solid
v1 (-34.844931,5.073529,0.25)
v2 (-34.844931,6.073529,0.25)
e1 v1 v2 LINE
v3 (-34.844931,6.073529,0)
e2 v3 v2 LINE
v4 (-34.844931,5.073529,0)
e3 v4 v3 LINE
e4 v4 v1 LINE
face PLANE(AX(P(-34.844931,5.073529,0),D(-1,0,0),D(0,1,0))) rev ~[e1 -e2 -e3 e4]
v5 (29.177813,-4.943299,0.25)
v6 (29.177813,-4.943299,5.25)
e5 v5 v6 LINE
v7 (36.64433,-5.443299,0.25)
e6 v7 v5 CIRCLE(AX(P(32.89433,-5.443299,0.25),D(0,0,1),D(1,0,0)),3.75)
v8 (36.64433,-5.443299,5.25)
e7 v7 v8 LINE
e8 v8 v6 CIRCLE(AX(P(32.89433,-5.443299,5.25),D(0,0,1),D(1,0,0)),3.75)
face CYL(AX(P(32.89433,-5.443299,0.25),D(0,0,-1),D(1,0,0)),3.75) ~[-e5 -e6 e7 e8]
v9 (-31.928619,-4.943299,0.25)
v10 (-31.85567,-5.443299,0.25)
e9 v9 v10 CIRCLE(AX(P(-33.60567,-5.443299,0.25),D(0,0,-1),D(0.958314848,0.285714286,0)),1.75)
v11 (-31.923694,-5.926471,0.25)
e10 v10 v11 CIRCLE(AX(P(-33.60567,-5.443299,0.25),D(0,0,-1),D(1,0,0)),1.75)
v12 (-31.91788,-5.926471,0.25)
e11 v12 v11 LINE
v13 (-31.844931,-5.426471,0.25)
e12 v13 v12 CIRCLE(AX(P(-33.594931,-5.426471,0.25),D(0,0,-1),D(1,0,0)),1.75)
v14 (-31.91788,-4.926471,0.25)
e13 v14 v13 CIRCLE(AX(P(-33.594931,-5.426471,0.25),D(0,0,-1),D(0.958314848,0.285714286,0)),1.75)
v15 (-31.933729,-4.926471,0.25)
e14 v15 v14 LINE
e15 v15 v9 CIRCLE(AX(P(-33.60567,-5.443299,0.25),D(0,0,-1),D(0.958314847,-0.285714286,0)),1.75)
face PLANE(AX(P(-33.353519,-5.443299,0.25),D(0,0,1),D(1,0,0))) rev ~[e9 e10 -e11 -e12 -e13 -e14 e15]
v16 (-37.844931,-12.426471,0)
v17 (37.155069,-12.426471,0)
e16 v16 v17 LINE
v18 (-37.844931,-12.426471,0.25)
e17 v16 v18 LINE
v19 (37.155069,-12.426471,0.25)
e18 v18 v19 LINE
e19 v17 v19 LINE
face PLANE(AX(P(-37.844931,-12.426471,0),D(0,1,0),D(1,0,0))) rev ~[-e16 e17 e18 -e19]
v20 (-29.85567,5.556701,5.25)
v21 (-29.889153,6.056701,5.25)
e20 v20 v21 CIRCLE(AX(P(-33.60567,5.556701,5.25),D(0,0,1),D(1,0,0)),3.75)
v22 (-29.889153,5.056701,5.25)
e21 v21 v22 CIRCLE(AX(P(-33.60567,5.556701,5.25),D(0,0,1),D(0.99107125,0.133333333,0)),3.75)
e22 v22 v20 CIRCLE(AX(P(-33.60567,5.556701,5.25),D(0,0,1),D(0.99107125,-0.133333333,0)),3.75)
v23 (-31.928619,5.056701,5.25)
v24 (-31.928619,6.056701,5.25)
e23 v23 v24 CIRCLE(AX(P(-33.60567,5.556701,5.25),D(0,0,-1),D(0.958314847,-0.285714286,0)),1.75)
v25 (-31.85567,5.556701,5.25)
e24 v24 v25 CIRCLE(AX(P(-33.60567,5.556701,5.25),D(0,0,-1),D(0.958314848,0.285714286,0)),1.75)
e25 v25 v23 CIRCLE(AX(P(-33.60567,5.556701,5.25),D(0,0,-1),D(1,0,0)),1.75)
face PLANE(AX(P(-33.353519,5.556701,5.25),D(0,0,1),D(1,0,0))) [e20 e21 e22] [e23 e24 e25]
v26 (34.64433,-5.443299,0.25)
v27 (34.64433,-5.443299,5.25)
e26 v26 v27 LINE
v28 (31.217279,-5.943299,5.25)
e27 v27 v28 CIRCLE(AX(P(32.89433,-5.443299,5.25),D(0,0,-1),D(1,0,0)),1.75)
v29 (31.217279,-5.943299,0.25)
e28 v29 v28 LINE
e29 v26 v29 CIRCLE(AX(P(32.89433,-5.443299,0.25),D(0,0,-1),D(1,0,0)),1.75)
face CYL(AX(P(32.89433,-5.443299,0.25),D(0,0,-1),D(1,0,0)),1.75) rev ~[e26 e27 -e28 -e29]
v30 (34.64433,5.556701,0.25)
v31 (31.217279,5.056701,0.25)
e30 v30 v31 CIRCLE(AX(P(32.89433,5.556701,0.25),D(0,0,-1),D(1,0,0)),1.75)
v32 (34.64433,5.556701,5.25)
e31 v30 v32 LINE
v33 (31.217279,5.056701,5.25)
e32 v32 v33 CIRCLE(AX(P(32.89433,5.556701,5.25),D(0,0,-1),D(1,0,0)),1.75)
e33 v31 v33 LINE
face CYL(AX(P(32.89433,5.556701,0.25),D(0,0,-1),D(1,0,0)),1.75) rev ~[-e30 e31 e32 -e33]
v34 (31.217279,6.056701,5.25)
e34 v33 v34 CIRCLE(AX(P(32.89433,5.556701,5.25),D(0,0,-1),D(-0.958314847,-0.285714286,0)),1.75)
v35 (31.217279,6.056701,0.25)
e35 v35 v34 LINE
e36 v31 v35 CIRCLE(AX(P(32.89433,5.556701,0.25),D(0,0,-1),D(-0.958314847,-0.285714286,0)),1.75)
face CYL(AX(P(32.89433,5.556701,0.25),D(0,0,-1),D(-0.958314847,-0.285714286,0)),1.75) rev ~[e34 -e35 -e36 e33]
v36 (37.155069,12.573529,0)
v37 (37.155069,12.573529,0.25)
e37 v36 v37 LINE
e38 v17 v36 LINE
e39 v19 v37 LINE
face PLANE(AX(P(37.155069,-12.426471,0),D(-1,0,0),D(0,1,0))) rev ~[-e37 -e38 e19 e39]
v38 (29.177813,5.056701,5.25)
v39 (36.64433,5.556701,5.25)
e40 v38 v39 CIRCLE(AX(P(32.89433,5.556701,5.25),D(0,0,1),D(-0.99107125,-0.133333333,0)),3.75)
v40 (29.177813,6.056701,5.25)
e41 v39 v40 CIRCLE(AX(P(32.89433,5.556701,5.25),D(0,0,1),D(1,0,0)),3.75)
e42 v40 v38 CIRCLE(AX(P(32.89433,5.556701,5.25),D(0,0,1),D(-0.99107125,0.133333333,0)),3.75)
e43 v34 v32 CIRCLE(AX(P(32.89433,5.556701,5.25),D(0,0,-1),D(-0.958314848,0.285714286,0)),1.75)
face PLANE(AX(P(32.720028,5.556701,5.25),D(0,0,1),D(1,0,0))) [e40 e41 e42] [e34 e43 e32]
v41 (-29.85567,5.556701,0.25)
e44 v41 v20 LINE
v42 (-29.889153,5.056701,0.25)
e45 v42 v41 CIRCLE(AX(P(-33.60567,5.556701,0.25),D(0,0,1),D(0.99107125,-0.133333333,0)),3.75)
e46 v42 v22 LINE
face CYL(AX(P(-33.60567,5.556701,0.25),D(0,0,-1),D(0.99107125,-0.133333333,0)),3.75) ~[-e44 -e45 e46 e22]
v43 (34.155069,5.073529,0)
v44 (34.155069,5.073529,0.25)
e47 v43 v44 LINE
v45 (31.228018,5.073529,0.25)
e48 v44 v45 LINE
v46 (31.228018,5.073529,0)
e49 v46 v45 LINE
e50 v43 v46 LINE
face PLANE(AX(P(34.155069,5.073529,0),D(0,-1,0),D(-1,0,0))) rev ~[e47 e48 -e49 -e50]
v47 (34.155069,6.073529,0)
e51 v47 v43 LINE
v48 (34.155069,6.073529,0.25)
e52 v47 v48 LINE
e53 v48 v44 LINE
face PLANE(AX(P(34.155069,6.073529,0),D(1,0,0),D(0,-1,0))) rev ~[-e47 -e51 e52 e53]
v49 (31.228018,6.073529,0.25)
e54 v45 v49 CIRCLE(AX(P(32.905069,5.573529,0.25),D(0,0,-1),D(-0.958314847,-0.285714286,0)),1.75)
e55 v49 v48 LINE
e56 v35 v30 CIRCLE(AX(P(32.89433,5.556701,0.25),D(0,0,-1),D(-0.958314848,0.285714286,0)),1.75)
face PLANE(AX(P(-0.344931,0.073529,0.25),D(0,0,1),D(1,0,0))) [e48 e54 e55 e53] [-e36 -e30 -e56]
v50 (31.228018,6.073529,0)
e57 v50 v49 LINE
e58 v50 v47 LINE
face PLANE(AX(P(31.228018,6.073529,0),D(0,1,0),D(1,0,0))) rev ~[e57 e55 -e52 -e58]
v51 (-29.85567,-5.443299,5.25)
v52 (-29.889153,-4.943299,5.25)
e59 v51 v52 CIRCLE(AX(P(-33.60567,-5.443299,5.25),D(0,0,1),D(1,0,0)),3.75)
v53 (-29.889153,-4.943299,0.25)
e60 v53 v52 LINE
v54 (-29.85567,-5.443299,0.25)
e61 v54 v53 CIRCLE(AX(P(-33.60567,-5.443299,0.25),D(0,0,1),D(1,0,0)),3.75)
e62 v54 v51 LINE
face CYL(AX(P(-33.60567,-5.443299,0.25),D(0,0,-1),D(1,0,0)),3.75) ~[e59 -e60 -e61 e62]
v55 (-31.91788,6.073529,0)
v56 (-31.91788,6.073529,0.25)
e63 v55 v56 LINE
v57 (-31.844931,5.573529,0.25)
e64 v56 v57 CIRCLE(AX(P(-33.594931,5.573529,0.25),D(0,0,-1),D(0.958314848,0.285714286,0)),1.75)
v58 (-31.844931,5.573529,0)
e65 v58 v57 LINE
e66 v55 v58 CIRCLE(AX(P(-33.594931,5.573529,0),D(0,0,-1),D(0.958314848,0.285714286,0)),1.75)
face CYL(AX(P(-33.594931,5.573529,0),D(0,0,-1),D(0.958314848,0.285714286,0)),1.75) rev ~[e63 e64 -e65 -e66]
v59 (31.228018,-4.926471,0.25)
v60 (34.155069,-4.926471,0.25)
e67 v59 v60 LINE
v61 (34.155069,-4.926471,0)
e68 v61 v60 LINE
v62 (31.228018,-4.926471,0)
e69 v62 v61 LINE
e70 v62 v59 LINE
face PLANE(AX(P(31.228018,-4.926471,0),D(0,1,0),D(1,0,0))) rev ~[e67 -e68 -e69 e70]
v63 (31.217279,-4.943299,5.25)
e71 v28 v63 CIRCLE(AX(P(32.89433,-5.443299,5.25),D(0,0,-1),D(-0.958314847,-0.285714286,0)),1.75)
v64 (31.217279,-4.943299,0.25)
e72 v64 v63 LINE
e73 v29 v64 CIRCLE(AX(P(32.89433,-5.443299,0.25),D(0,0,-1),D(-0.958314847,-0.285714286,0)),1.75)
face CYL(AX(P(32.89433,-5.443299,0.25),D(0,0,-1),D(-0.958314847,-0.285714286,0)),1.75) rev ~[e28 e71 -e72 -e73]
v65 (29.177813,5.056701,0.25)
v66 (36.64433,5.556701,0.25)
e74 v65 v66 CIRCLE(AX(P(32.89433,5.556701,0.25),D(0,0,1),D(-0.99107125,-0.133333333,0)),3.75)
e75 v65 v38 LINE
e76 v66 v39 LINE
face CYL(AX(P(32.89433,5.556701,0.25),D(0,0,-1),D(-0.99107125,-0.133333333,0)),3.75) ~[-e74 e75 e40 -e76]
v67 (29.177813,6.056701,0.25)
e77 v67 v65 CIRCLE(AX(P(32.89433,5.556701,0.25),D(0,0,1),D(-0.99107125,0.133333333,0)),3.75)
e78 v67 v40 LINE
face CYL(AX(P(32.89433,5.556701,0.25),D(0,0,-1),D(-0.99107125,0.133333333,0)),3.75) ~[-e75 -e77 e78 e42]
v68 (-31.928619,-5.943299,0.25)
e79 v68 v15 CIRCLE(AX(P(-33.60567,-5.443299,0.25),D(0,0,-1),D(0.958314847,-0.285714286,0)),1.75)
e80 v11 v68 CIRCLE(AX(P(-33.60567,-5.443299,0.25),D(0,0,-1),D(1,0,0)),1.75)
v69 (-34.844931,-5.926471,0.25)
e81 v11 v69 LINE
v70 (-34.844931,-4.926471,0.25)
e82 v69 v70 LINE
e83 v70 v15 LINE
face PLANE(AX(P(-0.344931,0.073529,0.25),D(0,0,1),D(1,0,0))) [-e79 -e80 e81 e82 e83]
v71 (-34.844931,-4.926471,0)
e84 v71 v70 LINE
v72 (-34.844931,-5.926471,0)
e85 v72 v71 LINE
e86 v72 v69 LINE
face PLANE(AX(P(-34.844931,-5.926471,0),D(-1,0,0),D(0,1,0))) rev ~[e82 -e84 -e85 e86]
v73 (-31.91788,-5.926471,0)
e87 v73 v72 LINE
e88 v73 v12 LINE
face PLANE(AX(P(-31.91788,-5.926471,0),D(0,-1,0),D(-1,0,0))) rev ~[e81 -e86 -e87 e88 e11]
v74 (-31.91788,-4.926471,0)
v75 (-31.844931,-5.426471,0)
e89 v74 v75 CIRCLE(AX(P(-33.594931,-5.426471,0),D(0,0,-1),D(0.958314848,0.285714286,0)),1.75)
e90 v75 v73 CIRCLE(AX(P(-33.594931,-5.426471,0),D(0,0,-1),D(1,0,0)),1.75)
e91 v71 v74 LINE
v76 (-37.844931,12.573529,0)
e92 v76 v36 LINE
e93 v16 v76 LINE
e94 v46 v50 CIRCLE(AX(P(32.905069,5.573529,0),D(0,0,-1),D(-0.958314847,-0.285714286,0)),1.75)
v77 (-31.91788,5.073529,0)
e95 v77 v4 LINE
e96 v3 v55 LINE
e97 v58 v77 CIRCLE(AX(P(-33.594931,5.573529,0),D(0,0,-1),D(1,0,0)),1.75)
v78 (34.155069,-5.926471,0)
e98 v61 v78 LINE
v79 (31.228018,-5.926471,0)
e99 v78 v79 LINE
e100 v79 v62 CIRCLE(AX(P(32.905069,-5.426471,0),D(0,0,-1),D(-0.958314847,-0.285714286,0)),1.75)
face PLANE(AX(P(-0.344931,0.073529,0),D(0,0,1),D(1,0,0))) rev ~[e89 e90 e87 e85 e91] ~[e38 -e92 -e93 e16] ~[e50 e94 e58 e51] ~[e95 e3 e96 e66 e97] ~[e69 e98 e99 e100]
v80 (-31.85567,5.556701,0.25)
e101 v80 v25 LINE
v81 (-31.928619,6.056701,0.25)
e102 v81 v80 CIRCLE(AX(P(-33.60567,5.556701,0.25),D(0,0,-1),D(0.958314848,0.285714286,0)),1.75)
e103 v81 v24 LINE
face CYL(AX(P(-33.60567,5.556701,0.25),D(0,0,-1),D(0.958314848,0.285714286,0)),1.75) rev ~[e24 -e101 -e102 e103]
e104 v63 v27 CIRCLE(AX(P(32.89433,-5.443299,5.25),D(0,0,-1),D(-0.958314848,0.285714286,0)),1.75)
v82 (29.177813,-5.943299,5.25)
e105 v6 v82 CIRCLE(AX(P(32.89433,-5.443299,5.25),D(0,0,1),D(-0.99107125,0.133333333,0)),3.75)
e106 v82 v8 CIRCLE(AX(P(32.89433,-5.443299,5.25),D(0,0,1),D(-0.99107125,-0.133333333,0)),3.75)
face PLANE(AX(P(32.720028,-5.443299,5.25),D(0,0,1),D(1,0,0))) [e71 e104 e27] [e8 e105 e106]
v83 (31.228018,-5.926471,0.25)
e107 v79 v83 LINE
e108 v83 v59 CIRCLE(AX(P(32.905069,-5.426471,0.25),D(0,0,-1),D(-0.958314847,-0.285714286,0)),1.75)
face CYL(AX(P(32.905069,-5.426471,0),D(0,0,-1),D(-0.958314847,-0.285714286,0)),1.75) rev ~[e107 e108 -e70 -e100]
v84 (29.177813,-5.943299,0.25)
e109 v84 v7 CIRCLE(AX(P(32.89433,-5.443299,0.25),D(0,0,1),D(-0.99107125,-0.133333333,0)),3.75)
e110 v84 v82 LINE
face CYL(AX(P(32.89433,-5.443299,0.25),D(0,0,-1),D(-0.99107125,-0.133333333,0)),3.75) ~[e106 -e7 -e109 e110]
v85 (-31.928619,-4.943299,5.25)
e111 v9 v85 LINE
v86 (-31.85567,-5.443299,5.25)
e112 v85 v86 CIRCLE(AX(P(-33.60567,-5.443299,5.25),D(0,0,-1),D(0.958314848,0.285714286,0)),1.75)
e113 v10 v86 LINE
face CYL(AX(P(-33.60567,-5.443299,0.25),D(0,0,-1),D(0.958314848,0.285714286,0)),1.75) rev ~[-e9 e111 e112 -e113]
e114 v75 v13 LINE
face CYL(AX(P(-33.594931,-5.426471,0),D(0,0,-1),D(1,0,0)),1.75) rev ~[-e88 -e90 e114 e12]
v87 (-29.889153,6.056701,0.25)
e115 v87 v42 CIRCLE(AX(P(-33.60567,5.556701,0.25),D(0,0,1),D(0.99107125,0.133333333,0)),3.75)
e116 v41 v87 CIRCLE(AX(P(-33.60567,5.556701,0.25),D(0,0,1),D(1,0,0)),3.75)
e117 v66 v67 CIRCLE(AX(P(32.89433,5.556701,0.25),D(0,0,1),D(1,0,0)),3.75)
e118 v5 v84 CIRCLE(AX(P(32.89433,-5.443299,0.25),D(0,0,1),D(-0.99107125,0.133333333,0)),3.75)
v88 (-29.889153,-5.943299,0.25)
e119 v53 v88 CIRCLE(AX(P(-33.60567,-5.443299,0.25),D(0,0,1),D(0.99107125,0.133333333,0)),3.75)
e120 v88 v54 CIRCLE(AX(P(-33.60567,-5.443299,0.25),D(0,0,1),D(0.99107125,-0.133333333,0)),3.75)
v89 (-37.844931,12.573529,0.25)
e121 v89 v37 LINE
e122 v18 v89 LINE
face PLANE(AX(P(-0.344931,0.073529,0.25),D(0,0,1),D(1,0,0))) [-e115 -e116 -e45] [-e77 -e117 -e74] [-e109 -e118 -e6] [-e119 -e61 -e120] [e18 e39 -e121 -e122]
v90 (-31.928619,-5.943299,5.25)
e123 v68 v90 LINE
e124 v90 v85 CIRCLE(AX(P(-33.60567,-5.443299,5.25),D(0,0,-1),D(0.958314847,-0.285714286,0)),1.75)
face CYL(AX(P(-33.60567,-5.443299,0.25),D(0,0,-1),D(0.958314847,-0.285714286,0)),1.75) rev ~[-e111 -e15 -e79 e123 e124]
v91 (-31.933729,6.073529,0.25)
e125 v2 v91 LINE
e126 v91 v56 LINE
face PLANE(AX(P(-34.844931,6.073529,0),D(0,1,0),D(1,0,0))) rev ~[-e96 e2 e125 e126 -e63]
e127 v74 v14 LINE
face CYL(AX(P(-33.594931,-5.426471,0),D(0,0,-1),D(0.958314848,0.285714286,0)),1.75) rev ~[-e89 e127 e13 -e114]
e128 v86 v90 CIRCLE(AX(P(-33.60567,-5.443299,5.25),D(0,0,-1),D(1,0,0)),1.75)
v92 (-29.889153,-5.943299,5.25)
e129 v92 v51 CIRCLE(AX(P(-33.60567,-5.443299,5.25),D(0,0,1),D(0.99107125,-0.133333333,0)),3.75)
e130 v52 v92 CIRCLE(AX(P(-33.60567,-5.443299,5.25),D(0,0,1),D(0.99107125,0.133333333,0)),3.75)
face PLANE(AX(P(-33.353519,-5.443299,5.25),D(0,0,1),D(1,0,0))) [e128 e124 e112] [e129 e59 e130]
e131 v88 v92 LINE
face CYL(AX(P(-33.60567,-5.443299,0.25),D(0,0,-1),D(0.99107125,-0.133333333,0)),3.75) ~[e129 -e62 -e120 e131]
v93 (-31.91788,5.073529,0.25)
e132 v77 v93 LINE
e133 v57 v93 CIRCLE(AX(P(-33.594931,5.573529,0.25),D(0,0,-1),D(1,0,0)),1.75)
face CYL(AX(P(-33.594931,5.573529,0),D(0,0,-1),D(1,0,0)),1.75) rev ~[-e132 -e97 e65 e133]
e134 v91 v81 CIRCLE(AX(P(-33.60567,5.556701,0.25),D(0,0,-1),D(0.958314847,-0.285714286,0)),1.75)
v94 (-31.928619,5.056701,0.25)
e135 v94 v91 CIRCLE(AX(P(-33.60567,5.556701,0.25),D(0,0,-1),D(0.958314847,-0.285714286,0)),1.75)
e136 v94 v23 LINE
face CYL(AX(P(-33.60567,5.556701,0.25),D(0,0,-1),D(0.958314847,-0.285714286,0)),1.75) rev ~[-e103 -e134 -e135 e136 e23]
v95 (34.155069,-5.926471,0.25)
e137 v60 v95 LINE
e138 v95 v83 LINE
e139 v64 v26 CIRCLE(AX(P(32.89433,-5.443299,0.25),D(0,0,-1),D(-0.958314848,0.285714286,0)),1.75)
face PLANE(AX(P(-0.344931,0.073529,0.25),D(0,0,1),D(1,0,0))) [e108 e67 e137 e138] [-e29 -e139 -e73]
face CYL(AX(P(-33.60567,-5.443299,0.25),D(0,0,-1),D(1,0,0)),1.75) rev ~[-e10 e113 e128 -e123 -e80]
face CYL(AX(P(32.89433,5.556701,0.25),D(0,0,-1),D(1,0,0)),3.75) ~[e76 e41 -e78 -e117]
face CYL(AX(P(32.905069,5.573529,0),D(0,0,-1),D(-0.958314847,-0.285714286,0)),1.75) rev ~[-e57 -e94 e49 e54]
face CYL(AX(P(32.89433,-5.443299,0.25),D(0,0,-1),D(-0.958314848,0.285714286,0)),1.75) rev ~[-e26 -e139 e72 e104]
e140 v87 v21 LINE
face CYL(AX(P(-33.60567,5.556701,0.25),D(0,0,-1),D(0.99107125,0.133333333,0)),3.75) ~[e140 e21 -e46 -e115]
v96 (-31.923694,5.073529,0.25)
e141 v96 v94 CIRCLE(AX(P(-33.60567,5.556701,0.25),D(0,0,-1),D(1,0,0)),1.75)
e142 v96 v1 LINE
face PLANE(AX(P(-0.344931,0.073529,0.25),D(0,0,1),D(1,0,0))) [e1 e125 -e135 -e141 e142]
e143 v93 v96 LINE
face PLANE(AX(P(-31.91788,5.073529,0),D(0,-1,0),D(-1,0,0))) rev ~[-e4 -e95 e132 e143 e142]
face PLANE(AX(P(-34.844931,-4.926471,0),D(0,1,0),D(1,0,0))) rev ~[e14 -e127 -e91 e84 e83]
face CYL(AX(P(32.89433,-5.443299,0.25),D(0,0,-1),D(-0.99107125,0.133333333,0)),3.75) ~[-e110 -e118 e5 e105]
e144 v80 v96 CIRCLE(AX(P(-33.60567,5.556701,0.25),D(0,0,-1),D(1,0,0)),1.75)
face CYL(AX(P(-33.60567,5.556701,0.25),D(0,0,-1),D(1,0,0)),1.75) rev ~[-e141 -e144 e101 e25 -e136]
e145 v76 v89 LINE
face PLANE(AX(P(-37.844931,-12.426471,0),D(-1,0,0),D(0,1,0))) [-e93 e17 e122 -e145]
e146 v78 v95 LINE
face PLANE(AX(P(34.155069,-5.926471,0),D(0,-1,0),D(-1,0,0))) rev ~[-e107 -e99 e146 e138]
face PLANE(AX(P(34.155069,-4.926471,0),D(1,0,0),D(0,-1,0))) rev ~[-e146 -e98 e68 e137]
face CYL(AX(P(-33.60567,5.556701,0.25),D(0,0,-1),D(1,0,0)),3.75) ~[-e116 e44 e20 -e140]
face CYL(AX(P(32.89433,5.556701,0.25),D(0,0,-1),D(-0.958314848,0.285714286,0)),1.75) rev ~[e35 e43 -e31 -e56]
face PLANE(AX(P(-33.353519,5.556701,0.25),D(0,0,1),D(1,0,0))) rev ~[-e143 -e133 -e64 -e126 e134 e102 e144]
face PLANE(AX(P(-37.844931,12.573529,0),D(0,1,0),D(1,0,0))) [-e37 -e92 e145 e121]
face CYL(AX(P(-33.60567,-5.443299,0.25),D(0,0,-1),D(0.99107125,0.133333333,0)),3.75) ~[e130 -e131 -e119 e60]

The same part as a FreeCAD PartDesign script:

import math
import FreeCAD as App
import Part
import Sketcher

V = App.Vector


def add_polygon(sketch, points):
    """Adds a closed chain of lines whose ends are joined by coincident constraints."""
    first, n = sketch.GeometryCount, len(points)
    for a, b in zip(points, points[1:] + points[:1]):
        sketch.addGeometry(Part.LineSegment(App.Vector(*a, 0), App.Vector(*b, 0)), False)
    for i in range(n):
        sketch.addConstraint(Sketcher.Constraint("Coincident", first + i, 2, first + (i + 1) % n, 1))

doc = App.newDocument("Part")
params = doc.addObject("Spreadsheet::Sheet", "Params")
for row, (alias, value) in enumerate([
    ("sketch1_width", "75 mm"),
    ("sketch1_height", "25 mm"),
    ("sketch1_height2", "1 mm"),
    ("sketch1_radius", "1.75 mm"),
    ("pad1_length", "0.25 mm"),
    ("sketch2_radius", "3.75 mm"),
    ("sketch2_radius2", "1.75 mm"),
    ("pad2_length", "5 mm"),
], start=1):
    params.set(f"A{row}", alias)
    params.set(f"B{row}", "=" + value)
    params.setAlias(f"B{row}", alias)

body = doc.addObject("PartDesign::Body", "Body")

# Sketch on XY plane
sketch1 = doc.addObject("Sketcher::SketchObject", "Sketch")
body.addObject(sketch1)
sketch1.AttachmentSupport = (doc.XY_Plane, [""])
sketch1.MapMode = "FlatFace"
add_polygon(sketch1, [(-37.8, 12.6), (-37.8, -12.4), (37.2, -12.4), (37.2, 12.6)])  # lines 0-3
sketch1.addGeometry(Part.ArcOfCircle(Part.Circle(V(-33.6, -5.4, 0), V(0, 0, 1), 1.8), math.radians(0), math.radians(16.6)), False)  # 4
sketch1.addGeometry(Part.ArcOfCircle(Part.Circle(V(-33.6, -5.4, 0), V(0, 0, 1), 1.8), math.radians(-16.6), math.radians(0)), False)  # 5
sketch1.addGeometry(Part.LineSegment(V(-31.9, -5.9, 0), V(-34.8, -5.9, 0)), False)  # 6
sketch1.addGeometry(Part.LineSegment(V(-34.8, -5.9, 0), V(-34.8, -4.9, 0)), False)  # 7
sketch1.addGeometry(Part.LineSegment(V(-34.8, -4.9, 0), V(-31.9, -4.9, 0)), False)  # 8
sketch1.addGeometry(Part.ArcOfCircle(Part.Circle(V(32.9, -5.4, 0), V(0, 0, 1), 1.7), math.radians(163), math.radians(197)), False)  # 9
sketch1.addGeometry(Part.LineSegment(V(31.2, -4.9, 0), V(34.2, -4.9, 0)), False)  # 10
sketch1.addGeometry(Part.LineSegment(V(34.2, -4.9, 0), V(34.2, -5.9, 0)), False)  # 11
sketch1.addGeometry(Part.LineSegment(V(34.2, -5.9, 0), V(31.2, -5.9, 0)), False)  # 12
sketch1.addGeometry(Part.ArcOfCircle(Part.Circle(V(-33.6, 5.6, 0), V(0, 0, 1), 1.8), math.radians(0), math.radians(16.6)), False)  # 13
sketch1.addGeometry(Part.ArcOfCircle(Part.Circle(V(-33.6, 5.6, 0), V(0, 0, 1), 1.8), math.radians(-16.6), math.radians(0)), False)  # 14
sketch1.addGeometry(Part.LineSegment(V(-31.9, 5.1, 0), V(-34.8, 5.1, 0)), False)  # 15
sketch1.addGeometry(Part.LineSegment(V(-34.8, 5.1, 0), V(-34.8, 6.1, 0)), False)  # 16
sketch1.addGeometry(Part.LineSegment(V(-34.8, 6.1, 0), V(-31.9, 6.1, 0)), False)  # 17
sketch1.addGeometry(Part.ArcOfCircle(Part.Circle(V(32.9, 5.6, 0), V(0, 0, 1), 1.7), math.radians(163), math.radians(197)), False)  # 18
sketch1.addGeometry(Part.LineSegment(V(31.2, 6.1, 0), V(34.2, 6.1, 0)), False)  # 19
sketch1.addGeometry(Part.LineSegment(V(34.2, 6.1, 0), V(34.2, 5.1, 0)), False)  # 20
sketch1.addGeometry(Part.LineSegment(V(34.2, 5.1, 0), V(31.2, 5.1, 0)), False)  # 21
sketch1.addConstraint(Sketcher.Constraint("Tangent", 4, 1, 5, 2))
sketch1.addConstraint(Sketcher.Constraint("Coincident", 5, 1, 6, 1))
sketch1.addConstraint(Sketcher.Constraint("Coincident", 6, 2, 7, 1))
sketch1.addConstraint(Sketcher.Constraint("Coincident", 7, 2, 8, 1))
sketch1.addConstraint(Sketcher.Constraint("Coincident", 8, 2, 4, 2))
sketch1.addConstraint(Sketcher.Constraint("Coincident", 9, 1, 10, 1))
sketch1.addConstraint(Sketcher.Constraint("Coincident", 10, 2, 11, 1))
sketch1.addConstraint(Sketcher.Constraint("Coincident", 11, 2, 12, 1))
sketch1.addConstraint(Sketcher.Constraint("Coincident", 12, 2, 9, 2))
sketch1.addConstraint(Sketcher.Constraint("Tangent", 13, 1, 14, 2))
sketch1.addConstraint(Sketcher.Constraint("Coincident", 14, 1, 15, 1))
sketch1.addConstraint(Sketcher.Constraint("Coincident", 15, 2, 16, 1))
sketch1.addConstraint(Sketcher.Constraint("Coincident", 16, 2, 17, 1))
sketch1.addConstraint(Sketcher.Constraint("Coincident", 17, 2, 13, 2))
sketch1.addConstraint(Sketcher.Constraint("Coincident", 18, 1, 19, 1))
sketch1.addConstraint(Sketcher.Constraint("Coincident", 19, 2, 20, 1))
sketch1.addConstraint(Sketcher.Constraint("Coincident", 20, 2, 21, 1))
sketch1.addConstraint(Sketcher.Constraint("Coincident", 21, 2, 18, 2))
sketch1.addConstraint(Sketcher.Constraint("Vertical", 0))
sketch1.addConstraint(Sketcher.Constraint("Horizontal", 1))
sketch1.addConstraint(Sketcher.Constraint("Vertical", 2))
sketch1.addConstraint(Sketcher.Constraint("Horizontal", 3))
sketch1.addConstraint(Sketcher.Constraint("Horizontal", 6))
sketch1.addConstraint(Sketcher.Constraint("Vertical", 7))
sketch1.addConstraint(Sketcher.Constraint("Horizontal", 8))
sketch1.addConstraint(Sketcher.Constraint("Horizontal", 10))
sketch1.addConstraint(Sketcher.Constraint("Vertical", 11))
sketch1.addConstraint(Sketcher.Constraint("Horizontal", 12))
sketch1.addConstraint(Sketcher.Constraint("Horizontal", 15))
sketch1.addConstraint(Sketcher.Constraint("Vertical", 16))
sketch1.addConstraint(Sketcher.Constraint("Horizontal", 17))
sketch1.addConstraint(Sketcher.Constraint("Horizontal", 19))
sketch1.addConstraint(Sketcher.Constraint("Vertical", 20))
sketch1.addConstraint(Sketcher.Constraint("Horizontal", 21))
sketch1.addConstraint(Sketcher.Constraint("Equal", 4, 5))
sketch1.addConstraint(Sketcher.Constraint("Equal", 5, 9))
sketch1.addConstraint(Sketcher.Constraint("Equal", 9, 13))
sketch1.addConstraint(Sketcher.Constraint("Equal", 13, 14))
sketch1.addConstraint(Sketcher.Constraint("Equal", 14, 18))
sketch1.addConstraint(Sketcher.Constraint("Horizontal", 5, 3, 9, 3))
sketch1.addConstraint(Sketcher.Constraint("Horizontal", 14, 3, 18, 3))
sketch1.addConstraint(Sketcher.Constraint("Horizontal", 9, 3, 4, 1))
sketch1.addConstraint(Sketcher.Constraint("Horizontal", 8, 2, 9, 1))
sketch1.addConstraint(Sketcher.Constraint("Horizontal", 6, 2, 11, 2))
sketch1.addConstraint(Sketcher.Constraint("Horizontal", 18, 3, 13, 1))
sketch1.addConstraint(Sketcher.Constraint("Horizontal", 17, 2, 18, 1))
sketch1.addConstraint(Sketcher.Constraint("Horizontal", 15, 2, 20, 2))
sketch1.addConstraint(Sketcher.Constraint("Vertical", 5, 3, 13, 3))
sketch1.addConstraint(Sketcher.Constraint("Vertical", 9, 3, 18, 3))
sketch1.addConstraint(Sketcher.Constraint("Vertical", 5, 1, 8, 2))
sketch1.addConstraint(Sketcher.Constraint("Vertical", 8, 2, 14, 1))
sketch1.addConstraint(Sketcher.Constraint("Vertical", 7, 2, 15, 2))
sketch1.addConstraint(Sketcher.Constraint("Vertical", 14, 1, 17, 2))
sketch1.addConstraint(Sketcher.Constraint("Vertical", 11, 2, 19, 2))
sketch1.addConstraint(Sketcher.Constraint("Equal", 8, 10))
sketch1.addConstraint(Sketcher.Constraint("DistanceX", 1, 1, 1, 2, 75.0))
sketch1.addConstraint(Sketcher.Constraint("DistanceY", 0, 2, 0, 1, 25.0))
sketch1.addConstraint(Sketcher.Constraint("DistanceY", 7, 1, 7, 2, 1.0))
sketch1.addConstraint(Sketcher.Constraint("Radius", 4, 1.75))
sketch1.addConstraint(Sketcher.Constraint("DistanceY", 5, 3, 13, 3, 11.0))
sketch1.addConstraint(Sketcher.Constraint("DistanceY", 0, 2, 4, 3, 7.0))
sketch1.addConstraint(Sketcher.Constraint("DistanceX", 0, 2, 4, 1, 6.0))
sketch1.addConstraint(Sketcher.Constraint("DistanceX", 6, 2, 4, 1, 3.0))
sketch1.addConstraint(Sketcher.Constraint("DistanceX", 10, 2, 1, 2, 3.0))
sketch1.addConstraint(Sketcher.Constraint("DistanceX", 4, 3, -1, 1, 33.594931))
sketch1.addConstraint(Sketcher.Constraint("DistanceY", 4, 3, -1, 1, 5.426471))
sketch1.setExpression("Constraints[59]", "Params.sketch1_width")
sketch1.setExpression("Constraints[60]", "Params.sketch1_height")
sketch1.setExpression("Constraints[61]", "Params.sketch1_height2")
sketch1.setExpression("Constraints[62]", "Params.sketch1_radius")
pad1 = doc.addObject("PartDesign::Pad", "Pad")
body.addObject(pad1)
pad1.Profile = sketch1
pad1.setExpression("Length", "Params.pad1_length")

# Sketch on XY plane
sketch2 = doc.addObject("Sketcher::SketchObject", "Sketch001")
body.addObject(sketch2)
sketch2.AttachmentSupport = (doc.XY_Plane, [""])
sketch2.MapMode = "FlatFace"
sketch2.AttachmentOffset = App.Placement(V(0, 0, 0.25), App.Rotation())
sketch2.addGeometry(Part.ArcOfCircle(Part.Circle(V(32.9, 5.6, 0), V(0, 0, 1), 3.8), math.radians(0), math.radians(172)), False)
sketch2.addGeometry(Part.ArcOfCircle(Part.Circle(V(32.9, 5.6, 0), V(0, 0, 1), 3.7), math.radians(172.34), math.radians(187.66)), False)
sketch2.addGeometry(Part.ArcOfCircle(Part.Circle(V(32.9, 5.6, 0), V(0, 0, 1), 3.8), math.radians(-172), math.radians(0)), False)
sketch2.addGeometry(Part.ArcOfCircle(Part.Circle(V(32.9, 5.6, 0), V(0, 0, 1), 1.8), math.radians(0), math.radians(163)), False)
sketch2.addGeometry(Part.ArcOfCircle(Part.Circle(V(32.9, 5.6, 0), V(0, 0, 1), 1.8), math.radians(-163), math.radians(0)), False)
sketch2.addGeometry(Part.ArcOfCircle(Part.Circle(V(32.9, 5.6, 0), V(0, 0, 1), 1.7), math.radians(163), math.radians(197)), False)
sketch2.addGeometry(Part.ArcOfCircle(Part.Circle(V(32.9, -5.4, 0), V(0, 0, 1), 3.8), math.radians(0), math.radians(172)), False)
sketch2.addGeometry(Part.ArcOfCircle(Part.Circle(V(32.9, -5.4, 0), V(0, 0, 1), 3.7), math.radians(172.34), math.radians(187.66)), False)
sketch2.addGeometry(Part.ArcOfCircle(Part.Circle(V(32.9, -5.4, 0), V(0, 0, 1), 3.8), math.radians(-172), math.radians(0)), False)
sketch2.addGeometry(Part.ArcOfCircle(Part.Circle(V(32.9, -5.4, 0), V(0, 0, 1), 1.8), math.radians(0), math.radians(163)), False)
sketch2.addGeometry(Part.ArcOfCircle(Part.Circle(V(32.9, -5.4, 0), V(0, 0, 1), 1.8), math.radians(-163), math.radians(0)), False)
sketch2.addGeometry(Part.ArcOfCircle(Part.Circle(V(32.9, -5.4, 0), V(0, 0, 1), 1.7), math.radians(163), math.radians(197)), False)
sketch2.addGeometry(Part.ArcOfCircle(Part.Circle(V(-33.6, 5.6, 0), V(0, 0, 1), 3.8), math.radians(8), math.radians(352)), False)
sketch2.addGeometry(Part.ArcOfCircle(Part.Circle(V(-33.6, 5.6, 0), V(0, 0, 1), 3.7), math.radians(-7.66), math.radians(0)), False)
sketch2.addGeometry(Part.ArcOfCircle(Part.Circle(V(-33.6, 5.6, 0), V(0, 0, 1), 3.7), math.radians(0), math.radians(7.66)), False)
sketch2.addGeometry(Part.ArcOfCircle(Part.Circle(V(-33.6, 5.6, 0), V(0, 0, 1), 1.8), math.radians(17), math.radians(343)), False)
sketch2.addGeometry(Part.ArcOfCircle(Part.Circle(V(-33.6, 5.6, 0), V(0, 0, 1), 1.8), math.radians(0), math.radians(16.6)), False)
sketch2.addGeometry(Part.ArcOfCircle(Part.Circle(V(-33.6, 5.6, 0), V(0, 0, 1), 1.8), math.radians(-16.6), math.radians(0)), False)
sketch2.addGeometry(Part.ArcOfCircle(Part.Circle(V(-33.6, -5.4, 0), V(0, 0, 1), 3.8), math.radians(8), math.radians(352)), False)
sketch2.addGeometry(Part.ArcOfCircle(Part.Circle(V(-33.6, -5.4, 0), V(0, 0, 1), 3.7), math.radians(-7.66), math.radians(0)), False)
sketch2.addGeometry(Part.ArcOfCircle(Part.Circle(V(-33.6, -5.4, 0), V(0, 0, 1), 3.7), math.radians(0), math.radians(7.66)), False)
sketch2.addGeometry(Part.ArcOfCircle(Part.Circle(V(-33.6, -5.4, 0), V(0, 0, 1), 1.8), math.radians(17), math.radians(343)), False)
sketch2.addGeometry(Part.ArcOfCircle(Part.Circle(V(-33.6, -5.4, 0), V(0, 0, 1), 1.8), math.radians(0), math.radians(16.6)), False)
sketch2.addGeometry(Part.ArcOfCircle(Part.Circle(V(-33.6, -5.4, 0), V(0, 0, 1), 1.8), math.radians(-16.6), math.radians(0)), False)
sketch2.addConstraint(Sketcher.Constraint("Tangent", 0, 2, 1, 1))
sketch2.addConstraint(Sketcher.Constraint("Tangent", 1, 2, 2, 1))
sketch2.addConstraint(Sketcher.Constraint("Tangent", 2, 2, 0, 1))
sketch2.addConstraint(Sketcher.Constraint("Tangent", 3, 1, 4, 2))
sketch2.addConstraint(Sketcher.Constraint("Tangent", 4, 1, 5, 2))
sketch2.addConstraint(Sketcher.Constraint("Tangent", 5, 1, 3, 2))
sketch2.addConstraint(Sketcher.Constraint("Tangent", 6, 2, 7, 1))
sketch2.addConstraint(Sketcher.Constraint("Tangent", 7, 2, 8, 1))
sketch2.addConstraint(Sketcher.Constraint("Tangent", 8, 2, 6, 1))
sketch2.addConstraint(Sketcher.Constraint("Tangent", 9, 1, 10, 2))
sketch2.addConstraint(Sketcher.Constraint("Tangent", 10, 1, 11, 2))
sketch2.addConstraint(Sketcher.Constraint("Tangent", 11, 1, 9, 2))
sketch2.addConstraint(Sketcher.Constraint("Tangent", 12, 2, 13, 1))
sketch2.addConstraint(Sketcher.Constraint("Tangent", 13, 2, 14, 1))
sketch2.addConstraint(Sketcher.Constraint("Tangent", 14, 2, 12, 1))
sketch2.addConstraint(Sketcher.Constraint("Tangent", 15, 1, 16, 2))
sketch2.addConstraint(Sketcher.Constraint("Tangent", 16, 1, 17, 2))
sketch2.addConstraint(Sketcher.Constraint("Tangent", 17, 1, 15, 2))
sketch2.addConstraint(Sketcher.Constraint("Tangent", 18, 2, 19, 1))
sketch2.addConstraint(Sketcher.Constraint("Tangent", 19, 2, 20, 1))
sketch2.addConstraint(Sketcher.Constraint("Tangent", 20, 2, 18, 1))
sketch2.addConstraint(Sketcher.Constraint("Tangent", 21, 1, 22, 2))
sketch2.addConstraint(Sketcher.Constraint("Tangent", 22, 1, 23, 2))
sketch2.addConstraint(Sketcher.Constraint("Tangent", 23, 1, 21, 2))
sketch2.addConstraint(Sketcher.Constraint("Coincident", 3, 3, 0, 3))
sketch2.addConstraint(Sketcher.Constraint("Coincident", 9, 3, 6, 3))
sketch2.addConstraint(Sketcher.Constraint("Coincident", 15, 3, 12, 3))
sketch2.addConstraint(Sketcher.Constraint("Coincident", 21, 3, 18, 3))
sketch2.addConstraint(Sketcher.Constraint("Equal", 2, 6))
sketch2.addConstraint(Sketcher.Constraint("Equal", 5, 9))
sketch2.addConstraint(Sketcher.Constraint("Equal", 8, 12))
sketch2.addConstraint(Sketcher.Constraint("Equal", 11, 15))
sketch2.addConstraint(Sketcher.Constraint("Equal", 14, 18))
sketch2.addConstraint(Sketcher.Constraint("Equal", 17, 21))
sketch2.addConstraint(Sketcher.Constraint("Horizontal", 5, 3, 12, 3))
sketch2.addConstraint(Sketcher.Constraint("Horizontal", 11, 3, 18, 3))
sketch2.addConstraint(Sketcher.Constraint("Horizontal", 17, 3, 2, 2))
sketch2.addConstraint(Sketcher.Constraint("Horizontal", 2, 2, 3, 1))
sketch2.addConstraint(Sketcher.Constraint("Horizontal", 1, 2, 4, 1))
sketch2.addConstraint(Sketcher.Constraint("Horizontal", 0, 2, 5, 1))
sketch2.addConstraint(Sketcher.Constraint("Horizontal", 23, 3, 8, 2))
sketch2.addConstraint(Sketcher.Constraint("Horizontal", 8, 2, 9, 1))
sketch2.addConstraint(Sketcher.Constraint("Horizontal", 7, 2, 10, 1))
sketch2.addConstraint(Sketcher.Constraint("Horizontal", 6, 2, 11, 1))
sketch2.addConstraint(Sketcher.Constraint("Horizontal", 4, 1, 12, 2))
sketch2.addConstraint(Sketcher.Constraint("Horizontal", 3, 1, 13, 2))
sketch2.addConstraint(Sketcher.Constraint("Horizontal", 5, 1, 14, 2))
sketch2.addConstraint(Sketcher.Constraint("Horizontal", 14, 2, 15, 1))
sketch2.addConstraint(Sketcher.Constraint("Horizontal", 13, 2, 16, 1))
sketch2.addConstraint(Sketcher.Constraint("Horizontal", 12, 2, 17, 1))
sketch2.addConstraint(Sketcher.Constraint("Horizontal", 10, 1, 18, 2))
sketch2.addConstraint(Sketcher.Constraint("Horizontal", 9, 1, 19, 2))
sketch2.addConstraint(Sketcher.Constraint("Horizontal", 11, 1, 20, 2))
sketch2.addConstraint(Sketcher.Constraint("Horizontal", 20, 2, 21, 1))
sketch2.addConstraint(Sketcher.Constraint("Horizontal", 19, 2, 22, 1))
sketch2.addConstraint(Sketcher.Constraint("Horizontal", 18, 2, 23, 1))
sketch2.addConstraint(Sketcher.Constraint("Vertical", 5, 3, 6, 3))
sketch2.addConstraint(Sketcher.Constraint("Vertical", 17, 3, 18, 3))
sketch2.addConstraint(Sketcher.Constraint("Vertical", 0, 2, 1, 2))
sketch2.addConstraint(Sketcher.Constraint("Vertical", 1, 2, 6, 2))
sketch2.addConstraint(Sketcher.Constraint("Vertical", 6, 2, 7, 2))
sketch2.addConstraint(Sketcher.Constraint("Radius", 0, 3.75))
sketch2.addConstraint(Sketcher.Constraint("Radius", 3, 1.75))
sketch2.addConstraint(Sketcher.Constraint("DistanceY", 6, 3, 0, 3, 11.0))
sketch2.addConstraint(Sketcher.Constraint("DistanceY", 1, 2, 0, 2, 1.0))
sketch2.addConstraint(Sketcher.Constraint("DistanceX", 12, 3, 1, 3, 66.5))
sketch2.addConstraint(Sketcher.Constraint("DistanceY", -1, 1, 0, 3, 5.556701))
sketch2.addConstraint(Sketcher.Constraint("DistanceX", -1, 1, 0, 3, 32.89433))
sketch2.setExpression("Constraints[61]", "Params.sketch2_radius")
sketch2.setExpression("Constraints[62]", "Params.sketch2_radius2")
pad2 = doc.addObject("PartDesign::Pad", "Pad001")
body.addObject(pad2)
pad2.Profile = sketch2
pad2.setExpression("Length", "Params.pad2_length")

doc.recompute()
